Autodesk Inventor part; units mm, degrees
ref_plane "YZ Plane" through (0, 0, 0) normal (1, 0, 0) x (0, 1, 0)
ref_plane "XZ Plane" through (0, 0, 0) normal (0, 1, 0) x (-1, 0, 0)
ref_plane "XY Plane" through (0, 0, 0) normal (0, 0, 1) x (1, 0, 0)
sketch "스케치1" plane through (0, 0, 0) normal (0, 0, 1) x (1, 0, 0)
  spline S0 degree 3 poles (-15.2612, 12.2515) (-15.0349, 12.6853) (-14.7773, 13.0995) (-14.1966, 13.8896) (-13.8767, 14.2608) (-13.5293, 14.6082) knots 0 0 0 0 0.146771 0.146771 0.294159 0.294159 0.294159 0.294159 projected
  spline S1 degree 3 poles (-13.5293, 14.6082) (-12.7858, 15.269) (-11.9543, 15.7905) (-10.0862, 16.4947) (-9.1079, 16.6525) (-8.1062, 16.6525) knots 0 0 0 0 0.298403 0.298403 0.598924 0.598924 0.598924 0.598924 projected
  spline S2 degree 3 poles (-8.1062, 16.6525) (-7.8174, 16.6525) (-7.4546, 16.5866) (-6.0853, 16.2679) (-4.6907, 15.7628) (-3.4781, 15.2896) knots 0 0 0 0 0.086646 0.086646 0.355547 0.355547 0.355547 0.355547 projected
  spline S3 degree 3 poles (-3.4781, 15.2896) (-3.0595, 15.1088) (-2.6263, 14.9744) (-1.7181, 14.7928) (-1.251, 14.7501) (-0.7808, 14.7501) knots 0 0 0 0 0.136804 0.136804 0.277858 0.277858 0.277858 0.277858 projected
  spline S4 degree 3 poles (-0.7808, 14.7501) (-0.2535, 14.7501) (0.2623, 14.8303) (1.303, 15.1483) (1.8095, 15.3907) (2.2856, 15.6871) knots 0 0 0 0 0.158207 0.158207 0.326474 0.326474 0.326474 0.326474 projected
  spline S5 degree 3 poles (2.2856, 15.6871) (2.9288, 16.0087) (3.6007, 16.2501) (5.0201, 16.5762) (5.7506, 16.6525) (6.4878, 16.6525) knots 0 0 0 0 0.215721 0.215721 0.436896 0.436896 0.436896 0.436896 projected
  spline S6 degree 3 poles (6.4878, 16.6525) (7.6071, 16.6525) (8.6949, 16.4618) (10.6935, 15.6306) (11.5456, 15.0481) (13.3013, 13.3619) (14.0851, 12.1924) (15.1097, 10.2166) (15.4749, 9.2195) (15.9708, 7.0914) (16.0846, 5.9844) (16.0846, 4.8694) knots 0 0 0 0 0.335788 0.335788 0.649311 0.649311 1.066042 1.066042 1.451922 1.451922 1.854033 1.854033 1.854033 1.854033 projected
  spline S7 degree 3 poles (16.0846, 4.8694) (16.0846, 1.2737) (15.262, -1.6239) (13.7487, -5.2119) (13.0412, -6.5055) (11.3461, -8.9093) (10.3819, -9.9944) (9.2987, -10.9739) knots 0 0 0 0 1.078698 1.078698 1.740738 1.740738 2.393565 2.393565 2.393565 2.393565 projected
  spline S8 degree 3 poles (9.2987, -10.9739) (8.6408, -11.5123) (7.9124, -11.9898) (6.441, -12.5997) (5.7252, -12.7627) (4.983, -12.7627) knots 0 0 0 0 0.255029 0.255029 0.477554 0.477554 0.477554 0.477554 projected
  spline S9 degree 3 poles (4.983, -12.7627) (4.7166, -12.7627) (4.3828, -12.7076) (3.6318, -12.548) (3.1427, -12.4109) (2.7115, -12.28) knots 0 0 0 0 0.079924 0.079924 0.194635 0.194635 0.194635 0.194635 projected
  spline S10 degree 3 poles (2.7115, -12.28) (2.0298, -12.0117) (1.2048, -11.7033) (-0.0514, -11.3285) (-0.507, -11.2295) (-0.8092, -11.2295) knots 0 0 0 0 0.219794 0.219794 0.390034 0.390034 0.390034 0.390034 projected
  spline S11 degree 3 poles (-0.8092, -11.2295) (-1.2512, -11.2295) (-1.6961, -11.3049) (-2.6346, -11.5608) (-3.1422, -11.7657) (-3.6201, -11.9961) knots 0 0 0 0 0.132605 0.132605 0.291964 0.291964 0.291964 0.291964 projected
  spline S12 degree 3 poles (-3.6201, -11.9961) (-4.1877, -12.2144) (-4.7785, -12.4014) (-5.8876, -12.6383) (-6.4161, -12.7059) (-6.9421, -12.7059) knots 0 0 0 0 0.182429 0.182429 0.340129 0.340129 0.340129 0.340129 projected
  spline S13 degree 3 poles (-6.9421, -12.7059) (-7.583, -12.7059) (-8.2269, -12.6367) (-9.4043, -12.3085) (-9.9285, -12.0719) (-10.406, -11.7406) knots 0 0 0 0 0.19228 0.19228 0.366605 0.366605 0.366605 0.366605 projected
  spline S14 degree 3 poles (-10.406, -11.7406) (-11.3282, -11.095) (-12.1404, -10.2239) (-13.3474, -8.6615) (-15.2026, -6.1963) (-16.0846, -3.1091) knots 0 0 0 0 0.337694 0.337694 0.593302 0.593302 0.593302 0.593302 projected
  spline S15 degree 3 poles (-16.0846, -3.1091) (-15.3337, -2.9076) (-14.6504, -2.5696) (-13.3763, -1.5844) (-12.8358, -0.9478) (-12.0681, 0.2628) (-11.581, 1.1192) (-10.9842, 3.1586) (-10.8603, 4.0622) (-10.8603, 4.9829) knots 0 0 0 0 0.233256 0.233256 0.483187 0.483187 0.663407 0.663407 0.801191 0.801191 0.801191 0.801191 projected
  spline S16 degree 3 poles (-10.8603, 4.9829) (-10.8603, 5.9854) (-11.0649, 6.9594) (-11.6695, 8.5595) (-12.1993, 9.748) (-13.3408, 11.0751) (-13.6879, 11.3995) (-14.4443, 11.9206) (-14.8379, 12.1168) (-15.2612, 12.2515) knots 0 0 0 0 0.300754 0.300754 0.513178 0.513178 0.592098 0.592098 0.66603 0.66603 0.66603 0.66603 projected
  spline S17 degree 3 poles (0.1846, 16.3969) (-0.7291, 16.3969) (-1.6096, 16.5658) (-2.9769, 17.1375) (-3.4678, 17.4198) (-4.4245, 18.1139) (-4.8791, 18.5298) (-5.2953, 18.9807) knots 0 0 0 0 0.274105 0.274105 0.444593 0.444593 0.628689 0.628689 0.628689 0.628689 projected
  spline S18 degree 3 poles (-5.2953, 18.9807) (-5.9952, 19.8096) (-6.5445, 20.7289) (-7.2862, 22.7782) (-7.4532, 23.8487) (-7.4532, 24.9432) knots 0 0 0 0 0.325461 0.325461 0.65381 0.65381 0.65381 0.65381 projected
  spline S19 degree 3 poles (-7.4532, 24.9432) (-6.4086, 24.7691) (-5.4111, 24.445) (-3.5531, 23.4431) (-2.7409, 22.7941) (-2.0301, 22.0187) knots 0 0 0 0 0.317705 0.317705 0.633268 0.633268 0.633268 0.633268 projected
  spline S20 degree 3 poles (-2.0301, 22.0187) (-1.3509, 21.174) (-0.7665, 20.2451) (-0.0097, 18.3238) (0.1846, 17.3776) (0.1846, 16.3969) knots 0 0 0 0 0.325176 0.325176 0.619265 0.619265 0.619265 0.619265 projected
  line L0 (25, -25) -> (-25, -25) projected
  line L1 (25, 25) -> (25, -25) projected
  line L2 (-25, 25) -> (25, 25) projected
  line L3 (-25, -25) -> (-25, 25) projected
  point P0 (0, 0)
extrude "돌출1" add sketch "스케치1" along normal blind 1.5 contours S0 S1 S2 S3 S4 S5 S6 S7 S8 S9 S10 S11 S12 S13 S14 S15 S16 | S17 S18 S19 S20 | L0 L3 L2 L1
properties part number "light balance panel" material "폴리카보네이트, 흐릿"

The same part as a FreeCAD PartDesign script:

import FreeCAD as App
import Part
import Sketcher

V = App.Vector
Q = App.Units.Quantity


def add_polygon(sketch, points):
    """Adds a closed chain of lines whose ends are joined by coincident constraints."""
    first, n = sketch.GeometryCount, len(points)
    for a, b in zip(points, points[1:] + points[:1]):
        sketch.addGeometry(Part.LineSegment(App.Vector(*a, 0), App.Vector(*b, 0)), False)
    for i in range(n):
        sketch.addConstraint(Sketcher.Constraint("Coincident", first + i, 2, first + (i + 1) % n, 1))

doc = App.newDocument("Part")
body = doc.addObject("PartDesign::Body", "Body")

# Sketch on XY plane
sketch1 = body.newObject("Sketcher::SketchObject", "Sketch")
sketch1.AttachmentSupport = (doc.getObject("XY_Plane"), [""])
sketch1.MapMode = "FlatFace"
add_polygon(sketch1, [(-25, -25), (25, -25), (25, 25), (-25, 25)])  # lines 0-3
sketch1.addConstraint(Sketcher.Constraint("Horizontal", 0))
sketch1.addConstraint(Sketcher.Constraint("Vertical", 1))
sketch1.addConstraint(Sketcher.Constraint("Horizontal", 2))
sketch1.addConstraint(Sketcher.Constraint("Vertical", 3))
sketch1.addConstraint(Sketcher.Constraint("Symmetric", 0, 2, 2, 2, -1, 1))
sketch1.addConstraint(Sketcher.Constraint("Equal", 2, 1))
sketch1.addConstraint(Sketcher.Constraint("DistanceX", 0, 1, 0, 2, Q("50 mm")))
pad1 = body.newObject("PartDesign::Pad", "Pad")
pad1.Profile = sketch1
pad1.Length = 1.5

doc.recompute()
